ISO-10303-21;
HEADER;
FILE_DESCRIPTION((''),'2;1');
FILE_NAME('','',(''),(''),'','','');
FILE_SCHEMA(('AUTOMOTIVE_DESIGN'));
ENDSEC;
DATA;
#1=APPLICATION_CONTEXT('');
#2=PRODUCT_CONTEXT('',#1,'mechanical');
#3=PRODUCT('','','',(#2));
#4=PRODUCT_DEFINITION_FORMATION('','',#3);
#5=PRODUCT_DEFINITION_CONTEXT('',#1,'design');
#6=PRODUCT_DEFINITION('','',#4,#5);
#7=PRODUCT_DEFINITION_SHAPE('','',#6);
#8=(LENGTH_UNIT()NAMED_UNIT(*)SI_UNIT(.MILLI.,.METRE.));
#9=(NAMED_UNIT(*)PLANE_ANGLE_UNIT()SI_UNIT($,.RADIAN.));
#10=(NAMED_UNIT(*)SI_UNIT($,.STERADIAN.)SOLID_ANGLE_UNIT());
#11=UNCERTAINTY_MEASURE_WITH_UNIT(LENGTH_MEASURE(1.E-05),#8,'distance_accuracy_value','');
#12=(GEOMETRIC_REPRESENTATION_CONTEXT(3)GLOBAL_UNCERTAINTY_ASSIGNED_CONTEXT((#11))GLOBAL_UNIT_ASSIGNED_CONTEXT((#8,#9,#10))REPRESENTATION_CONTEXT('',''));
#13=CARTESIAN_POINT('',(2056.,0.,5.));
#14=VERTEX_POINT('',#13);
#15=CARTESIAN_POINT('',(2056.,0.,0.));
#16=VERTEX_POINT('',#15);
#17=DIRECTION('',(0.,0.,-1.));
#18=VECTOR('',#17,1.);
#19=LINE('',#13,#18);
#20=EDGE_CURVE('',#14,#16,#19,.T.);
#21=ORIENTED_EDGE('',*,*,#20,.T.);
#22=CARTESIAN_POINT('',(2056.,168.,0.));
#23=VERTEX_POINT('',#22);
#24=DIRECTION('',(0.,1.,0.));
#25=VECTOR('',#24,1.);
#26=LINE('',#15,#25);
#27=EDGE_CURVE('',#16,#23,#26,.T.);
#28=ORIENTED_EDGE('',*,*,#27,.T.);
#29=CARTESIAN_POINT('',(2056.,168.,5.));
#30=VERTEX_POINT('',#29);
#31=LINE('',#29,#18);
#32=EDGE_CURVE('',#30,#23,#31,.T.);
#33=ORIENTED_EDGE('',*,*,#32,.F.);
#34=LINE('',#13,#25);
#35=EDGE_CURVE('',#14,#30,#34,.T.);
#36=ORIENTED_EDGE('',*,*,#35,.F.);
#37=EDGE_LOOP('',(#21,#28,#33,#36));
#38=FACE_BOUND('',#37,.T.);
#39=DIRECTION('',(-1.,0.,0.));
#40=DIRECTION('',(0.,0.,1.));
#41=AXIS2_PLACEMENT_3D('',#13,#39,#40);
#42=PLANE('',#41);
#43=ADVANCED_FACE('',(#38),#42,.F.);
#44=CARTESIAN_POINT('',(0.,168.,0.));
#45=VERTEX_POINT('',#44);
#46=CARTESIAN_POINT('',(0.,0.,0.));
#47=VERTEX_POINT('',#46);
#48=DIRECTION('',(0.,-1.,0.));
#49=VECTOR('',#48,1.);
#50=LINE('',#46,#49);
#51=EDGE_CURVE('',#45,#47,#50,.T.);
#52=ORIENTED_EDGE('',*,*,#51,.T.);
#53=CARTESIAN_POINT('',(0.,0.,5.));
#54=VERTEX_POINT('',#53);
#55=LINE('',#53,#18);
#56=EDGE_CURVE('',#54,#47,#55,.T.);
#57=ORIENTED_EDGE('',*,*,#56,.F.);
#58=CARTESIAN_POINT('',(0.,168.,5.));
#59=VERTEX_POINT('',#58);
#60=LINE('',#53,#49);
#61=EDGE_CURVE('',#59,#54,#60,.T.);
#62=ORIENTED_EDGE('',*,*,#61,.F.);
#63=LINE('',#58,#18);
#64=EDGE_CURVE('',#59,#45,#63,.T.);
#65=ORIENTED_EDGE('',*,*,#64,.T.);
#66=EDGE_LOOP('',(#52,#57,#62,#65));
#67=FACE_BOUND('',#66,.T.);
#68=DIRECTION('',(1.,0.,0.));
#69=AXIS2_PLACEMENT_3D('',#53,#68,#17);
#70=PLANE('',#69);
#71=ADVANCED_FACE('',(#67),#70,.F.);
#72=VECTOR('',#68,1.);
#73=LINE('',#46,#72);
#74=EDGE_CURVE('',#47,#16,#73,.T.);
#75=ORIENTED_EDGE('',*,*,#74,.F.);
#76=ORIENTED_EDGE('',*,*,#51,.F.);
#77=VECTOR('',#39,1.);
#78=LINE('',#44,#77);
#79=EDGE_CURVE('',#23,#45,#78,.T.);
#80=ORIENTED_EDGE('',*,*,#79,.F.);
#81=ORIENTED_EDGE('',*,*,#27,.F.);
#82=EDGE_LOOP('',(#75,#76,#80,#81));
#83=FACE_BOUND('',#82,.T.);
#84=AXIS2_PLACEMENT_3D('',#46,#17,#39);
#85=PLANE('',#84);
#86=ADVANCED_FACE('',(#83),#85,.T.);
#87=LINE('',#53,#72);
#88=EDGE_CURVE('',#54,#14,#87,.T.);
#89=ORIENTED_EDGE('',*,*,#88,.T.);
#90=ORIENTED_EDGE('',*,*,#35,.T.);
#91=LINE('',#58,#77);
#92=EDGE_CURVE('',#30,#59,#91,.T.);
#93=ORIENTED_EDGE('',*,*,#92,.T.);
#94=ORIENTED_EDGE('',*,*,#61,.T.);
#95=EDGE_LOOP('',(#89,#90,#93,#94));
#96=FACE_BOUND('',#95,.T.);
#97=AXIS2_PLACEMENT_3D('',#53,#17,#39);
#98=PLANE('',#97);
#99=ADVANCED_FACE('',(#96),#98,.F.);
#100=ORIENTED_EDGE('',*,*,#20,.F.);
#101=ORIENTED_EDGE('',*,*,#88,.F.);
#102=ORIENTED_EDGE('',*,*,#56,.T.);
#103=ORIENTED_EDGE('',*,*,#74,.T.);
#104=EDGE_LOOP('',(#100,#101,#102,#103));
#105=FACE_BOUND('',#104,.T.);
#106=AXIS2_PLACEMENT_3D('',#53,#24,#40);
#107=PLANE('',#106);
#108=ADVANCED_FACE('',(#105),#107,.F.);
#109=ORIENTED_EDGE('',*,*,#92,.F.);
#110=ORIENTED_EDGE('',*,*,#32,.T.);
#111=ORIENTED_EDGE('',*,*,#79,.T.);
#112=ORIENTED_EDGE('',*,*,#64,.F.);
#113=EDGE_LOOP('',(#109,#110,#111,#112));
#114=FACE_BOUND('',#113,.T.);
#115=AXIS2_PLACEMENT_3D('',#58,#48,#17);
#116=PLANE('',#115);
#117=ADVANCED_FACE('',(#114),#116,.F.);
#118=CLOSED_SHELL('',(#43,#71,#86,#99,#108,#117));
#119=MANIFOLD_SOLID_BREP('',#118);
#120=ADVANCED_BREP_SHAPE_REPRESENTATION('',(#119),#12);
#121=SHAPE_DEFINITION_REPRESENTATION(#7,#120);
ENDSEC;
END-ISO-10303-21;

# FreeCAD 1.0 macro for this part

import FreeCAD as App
import Part
import Sketcher
from FreeCAD import Vector


def add_polygon(sketch, points):
    """Adds a closed chain of lines whose ends are joined by coincident constraints."""
    first, n = sketch.GeometryCount, len(points)
    for a, b in zip(points, points[1:] + points[:1]):
        sketch.addGeometry(Part.LineSegment(App.Vector(*a, 0), App.Vector(*b, 0)), False)
    for i in range(n):
        sketch.addConstraint(Sketcher.Constraint("Coincident", first + i, 2, first + (i + 1) % n, 1))

doc = App.newDocument("Part")
body = doc.addObject("PartDesign::Body", "Body")

# Sketch on XY plane
sketch1 = body.newObject("Sketcher::SketchObject", "Sketch")
sketch1.AttachmentSupport = (doc.getObject("XY_Plane"), [""])
sketch1.MapMode = "FlatFace"
add_polygon(sketch1, [(0, 168), (0, 0), (2056, 0), (2056, 168)])  # lines 0-3
sketch1.addConstraint([
    Sketcher.Constraint("Vertical", 0),
    Sketcher.Constraint("Horizontal", 1),
    Sketcher.Constraint("Vertical", 2),
    Sketcher.Constraint("Horizontal", 3),
    Sketcher.Constraint("Coincident", 0, 2, -1, 1),
    Sketcher.Constraint("DistanceX", 1, 1, 1, 2, 2056.0),
    Sketcher.Constraint("DistanceY", 0, 2, 0, 1, 168.0),
])
pad1 = body.newObject("PartDesign::Pad", "Pad")
pad1.Profile = sketch1
pad1.Length = 5

doc.recompute()
